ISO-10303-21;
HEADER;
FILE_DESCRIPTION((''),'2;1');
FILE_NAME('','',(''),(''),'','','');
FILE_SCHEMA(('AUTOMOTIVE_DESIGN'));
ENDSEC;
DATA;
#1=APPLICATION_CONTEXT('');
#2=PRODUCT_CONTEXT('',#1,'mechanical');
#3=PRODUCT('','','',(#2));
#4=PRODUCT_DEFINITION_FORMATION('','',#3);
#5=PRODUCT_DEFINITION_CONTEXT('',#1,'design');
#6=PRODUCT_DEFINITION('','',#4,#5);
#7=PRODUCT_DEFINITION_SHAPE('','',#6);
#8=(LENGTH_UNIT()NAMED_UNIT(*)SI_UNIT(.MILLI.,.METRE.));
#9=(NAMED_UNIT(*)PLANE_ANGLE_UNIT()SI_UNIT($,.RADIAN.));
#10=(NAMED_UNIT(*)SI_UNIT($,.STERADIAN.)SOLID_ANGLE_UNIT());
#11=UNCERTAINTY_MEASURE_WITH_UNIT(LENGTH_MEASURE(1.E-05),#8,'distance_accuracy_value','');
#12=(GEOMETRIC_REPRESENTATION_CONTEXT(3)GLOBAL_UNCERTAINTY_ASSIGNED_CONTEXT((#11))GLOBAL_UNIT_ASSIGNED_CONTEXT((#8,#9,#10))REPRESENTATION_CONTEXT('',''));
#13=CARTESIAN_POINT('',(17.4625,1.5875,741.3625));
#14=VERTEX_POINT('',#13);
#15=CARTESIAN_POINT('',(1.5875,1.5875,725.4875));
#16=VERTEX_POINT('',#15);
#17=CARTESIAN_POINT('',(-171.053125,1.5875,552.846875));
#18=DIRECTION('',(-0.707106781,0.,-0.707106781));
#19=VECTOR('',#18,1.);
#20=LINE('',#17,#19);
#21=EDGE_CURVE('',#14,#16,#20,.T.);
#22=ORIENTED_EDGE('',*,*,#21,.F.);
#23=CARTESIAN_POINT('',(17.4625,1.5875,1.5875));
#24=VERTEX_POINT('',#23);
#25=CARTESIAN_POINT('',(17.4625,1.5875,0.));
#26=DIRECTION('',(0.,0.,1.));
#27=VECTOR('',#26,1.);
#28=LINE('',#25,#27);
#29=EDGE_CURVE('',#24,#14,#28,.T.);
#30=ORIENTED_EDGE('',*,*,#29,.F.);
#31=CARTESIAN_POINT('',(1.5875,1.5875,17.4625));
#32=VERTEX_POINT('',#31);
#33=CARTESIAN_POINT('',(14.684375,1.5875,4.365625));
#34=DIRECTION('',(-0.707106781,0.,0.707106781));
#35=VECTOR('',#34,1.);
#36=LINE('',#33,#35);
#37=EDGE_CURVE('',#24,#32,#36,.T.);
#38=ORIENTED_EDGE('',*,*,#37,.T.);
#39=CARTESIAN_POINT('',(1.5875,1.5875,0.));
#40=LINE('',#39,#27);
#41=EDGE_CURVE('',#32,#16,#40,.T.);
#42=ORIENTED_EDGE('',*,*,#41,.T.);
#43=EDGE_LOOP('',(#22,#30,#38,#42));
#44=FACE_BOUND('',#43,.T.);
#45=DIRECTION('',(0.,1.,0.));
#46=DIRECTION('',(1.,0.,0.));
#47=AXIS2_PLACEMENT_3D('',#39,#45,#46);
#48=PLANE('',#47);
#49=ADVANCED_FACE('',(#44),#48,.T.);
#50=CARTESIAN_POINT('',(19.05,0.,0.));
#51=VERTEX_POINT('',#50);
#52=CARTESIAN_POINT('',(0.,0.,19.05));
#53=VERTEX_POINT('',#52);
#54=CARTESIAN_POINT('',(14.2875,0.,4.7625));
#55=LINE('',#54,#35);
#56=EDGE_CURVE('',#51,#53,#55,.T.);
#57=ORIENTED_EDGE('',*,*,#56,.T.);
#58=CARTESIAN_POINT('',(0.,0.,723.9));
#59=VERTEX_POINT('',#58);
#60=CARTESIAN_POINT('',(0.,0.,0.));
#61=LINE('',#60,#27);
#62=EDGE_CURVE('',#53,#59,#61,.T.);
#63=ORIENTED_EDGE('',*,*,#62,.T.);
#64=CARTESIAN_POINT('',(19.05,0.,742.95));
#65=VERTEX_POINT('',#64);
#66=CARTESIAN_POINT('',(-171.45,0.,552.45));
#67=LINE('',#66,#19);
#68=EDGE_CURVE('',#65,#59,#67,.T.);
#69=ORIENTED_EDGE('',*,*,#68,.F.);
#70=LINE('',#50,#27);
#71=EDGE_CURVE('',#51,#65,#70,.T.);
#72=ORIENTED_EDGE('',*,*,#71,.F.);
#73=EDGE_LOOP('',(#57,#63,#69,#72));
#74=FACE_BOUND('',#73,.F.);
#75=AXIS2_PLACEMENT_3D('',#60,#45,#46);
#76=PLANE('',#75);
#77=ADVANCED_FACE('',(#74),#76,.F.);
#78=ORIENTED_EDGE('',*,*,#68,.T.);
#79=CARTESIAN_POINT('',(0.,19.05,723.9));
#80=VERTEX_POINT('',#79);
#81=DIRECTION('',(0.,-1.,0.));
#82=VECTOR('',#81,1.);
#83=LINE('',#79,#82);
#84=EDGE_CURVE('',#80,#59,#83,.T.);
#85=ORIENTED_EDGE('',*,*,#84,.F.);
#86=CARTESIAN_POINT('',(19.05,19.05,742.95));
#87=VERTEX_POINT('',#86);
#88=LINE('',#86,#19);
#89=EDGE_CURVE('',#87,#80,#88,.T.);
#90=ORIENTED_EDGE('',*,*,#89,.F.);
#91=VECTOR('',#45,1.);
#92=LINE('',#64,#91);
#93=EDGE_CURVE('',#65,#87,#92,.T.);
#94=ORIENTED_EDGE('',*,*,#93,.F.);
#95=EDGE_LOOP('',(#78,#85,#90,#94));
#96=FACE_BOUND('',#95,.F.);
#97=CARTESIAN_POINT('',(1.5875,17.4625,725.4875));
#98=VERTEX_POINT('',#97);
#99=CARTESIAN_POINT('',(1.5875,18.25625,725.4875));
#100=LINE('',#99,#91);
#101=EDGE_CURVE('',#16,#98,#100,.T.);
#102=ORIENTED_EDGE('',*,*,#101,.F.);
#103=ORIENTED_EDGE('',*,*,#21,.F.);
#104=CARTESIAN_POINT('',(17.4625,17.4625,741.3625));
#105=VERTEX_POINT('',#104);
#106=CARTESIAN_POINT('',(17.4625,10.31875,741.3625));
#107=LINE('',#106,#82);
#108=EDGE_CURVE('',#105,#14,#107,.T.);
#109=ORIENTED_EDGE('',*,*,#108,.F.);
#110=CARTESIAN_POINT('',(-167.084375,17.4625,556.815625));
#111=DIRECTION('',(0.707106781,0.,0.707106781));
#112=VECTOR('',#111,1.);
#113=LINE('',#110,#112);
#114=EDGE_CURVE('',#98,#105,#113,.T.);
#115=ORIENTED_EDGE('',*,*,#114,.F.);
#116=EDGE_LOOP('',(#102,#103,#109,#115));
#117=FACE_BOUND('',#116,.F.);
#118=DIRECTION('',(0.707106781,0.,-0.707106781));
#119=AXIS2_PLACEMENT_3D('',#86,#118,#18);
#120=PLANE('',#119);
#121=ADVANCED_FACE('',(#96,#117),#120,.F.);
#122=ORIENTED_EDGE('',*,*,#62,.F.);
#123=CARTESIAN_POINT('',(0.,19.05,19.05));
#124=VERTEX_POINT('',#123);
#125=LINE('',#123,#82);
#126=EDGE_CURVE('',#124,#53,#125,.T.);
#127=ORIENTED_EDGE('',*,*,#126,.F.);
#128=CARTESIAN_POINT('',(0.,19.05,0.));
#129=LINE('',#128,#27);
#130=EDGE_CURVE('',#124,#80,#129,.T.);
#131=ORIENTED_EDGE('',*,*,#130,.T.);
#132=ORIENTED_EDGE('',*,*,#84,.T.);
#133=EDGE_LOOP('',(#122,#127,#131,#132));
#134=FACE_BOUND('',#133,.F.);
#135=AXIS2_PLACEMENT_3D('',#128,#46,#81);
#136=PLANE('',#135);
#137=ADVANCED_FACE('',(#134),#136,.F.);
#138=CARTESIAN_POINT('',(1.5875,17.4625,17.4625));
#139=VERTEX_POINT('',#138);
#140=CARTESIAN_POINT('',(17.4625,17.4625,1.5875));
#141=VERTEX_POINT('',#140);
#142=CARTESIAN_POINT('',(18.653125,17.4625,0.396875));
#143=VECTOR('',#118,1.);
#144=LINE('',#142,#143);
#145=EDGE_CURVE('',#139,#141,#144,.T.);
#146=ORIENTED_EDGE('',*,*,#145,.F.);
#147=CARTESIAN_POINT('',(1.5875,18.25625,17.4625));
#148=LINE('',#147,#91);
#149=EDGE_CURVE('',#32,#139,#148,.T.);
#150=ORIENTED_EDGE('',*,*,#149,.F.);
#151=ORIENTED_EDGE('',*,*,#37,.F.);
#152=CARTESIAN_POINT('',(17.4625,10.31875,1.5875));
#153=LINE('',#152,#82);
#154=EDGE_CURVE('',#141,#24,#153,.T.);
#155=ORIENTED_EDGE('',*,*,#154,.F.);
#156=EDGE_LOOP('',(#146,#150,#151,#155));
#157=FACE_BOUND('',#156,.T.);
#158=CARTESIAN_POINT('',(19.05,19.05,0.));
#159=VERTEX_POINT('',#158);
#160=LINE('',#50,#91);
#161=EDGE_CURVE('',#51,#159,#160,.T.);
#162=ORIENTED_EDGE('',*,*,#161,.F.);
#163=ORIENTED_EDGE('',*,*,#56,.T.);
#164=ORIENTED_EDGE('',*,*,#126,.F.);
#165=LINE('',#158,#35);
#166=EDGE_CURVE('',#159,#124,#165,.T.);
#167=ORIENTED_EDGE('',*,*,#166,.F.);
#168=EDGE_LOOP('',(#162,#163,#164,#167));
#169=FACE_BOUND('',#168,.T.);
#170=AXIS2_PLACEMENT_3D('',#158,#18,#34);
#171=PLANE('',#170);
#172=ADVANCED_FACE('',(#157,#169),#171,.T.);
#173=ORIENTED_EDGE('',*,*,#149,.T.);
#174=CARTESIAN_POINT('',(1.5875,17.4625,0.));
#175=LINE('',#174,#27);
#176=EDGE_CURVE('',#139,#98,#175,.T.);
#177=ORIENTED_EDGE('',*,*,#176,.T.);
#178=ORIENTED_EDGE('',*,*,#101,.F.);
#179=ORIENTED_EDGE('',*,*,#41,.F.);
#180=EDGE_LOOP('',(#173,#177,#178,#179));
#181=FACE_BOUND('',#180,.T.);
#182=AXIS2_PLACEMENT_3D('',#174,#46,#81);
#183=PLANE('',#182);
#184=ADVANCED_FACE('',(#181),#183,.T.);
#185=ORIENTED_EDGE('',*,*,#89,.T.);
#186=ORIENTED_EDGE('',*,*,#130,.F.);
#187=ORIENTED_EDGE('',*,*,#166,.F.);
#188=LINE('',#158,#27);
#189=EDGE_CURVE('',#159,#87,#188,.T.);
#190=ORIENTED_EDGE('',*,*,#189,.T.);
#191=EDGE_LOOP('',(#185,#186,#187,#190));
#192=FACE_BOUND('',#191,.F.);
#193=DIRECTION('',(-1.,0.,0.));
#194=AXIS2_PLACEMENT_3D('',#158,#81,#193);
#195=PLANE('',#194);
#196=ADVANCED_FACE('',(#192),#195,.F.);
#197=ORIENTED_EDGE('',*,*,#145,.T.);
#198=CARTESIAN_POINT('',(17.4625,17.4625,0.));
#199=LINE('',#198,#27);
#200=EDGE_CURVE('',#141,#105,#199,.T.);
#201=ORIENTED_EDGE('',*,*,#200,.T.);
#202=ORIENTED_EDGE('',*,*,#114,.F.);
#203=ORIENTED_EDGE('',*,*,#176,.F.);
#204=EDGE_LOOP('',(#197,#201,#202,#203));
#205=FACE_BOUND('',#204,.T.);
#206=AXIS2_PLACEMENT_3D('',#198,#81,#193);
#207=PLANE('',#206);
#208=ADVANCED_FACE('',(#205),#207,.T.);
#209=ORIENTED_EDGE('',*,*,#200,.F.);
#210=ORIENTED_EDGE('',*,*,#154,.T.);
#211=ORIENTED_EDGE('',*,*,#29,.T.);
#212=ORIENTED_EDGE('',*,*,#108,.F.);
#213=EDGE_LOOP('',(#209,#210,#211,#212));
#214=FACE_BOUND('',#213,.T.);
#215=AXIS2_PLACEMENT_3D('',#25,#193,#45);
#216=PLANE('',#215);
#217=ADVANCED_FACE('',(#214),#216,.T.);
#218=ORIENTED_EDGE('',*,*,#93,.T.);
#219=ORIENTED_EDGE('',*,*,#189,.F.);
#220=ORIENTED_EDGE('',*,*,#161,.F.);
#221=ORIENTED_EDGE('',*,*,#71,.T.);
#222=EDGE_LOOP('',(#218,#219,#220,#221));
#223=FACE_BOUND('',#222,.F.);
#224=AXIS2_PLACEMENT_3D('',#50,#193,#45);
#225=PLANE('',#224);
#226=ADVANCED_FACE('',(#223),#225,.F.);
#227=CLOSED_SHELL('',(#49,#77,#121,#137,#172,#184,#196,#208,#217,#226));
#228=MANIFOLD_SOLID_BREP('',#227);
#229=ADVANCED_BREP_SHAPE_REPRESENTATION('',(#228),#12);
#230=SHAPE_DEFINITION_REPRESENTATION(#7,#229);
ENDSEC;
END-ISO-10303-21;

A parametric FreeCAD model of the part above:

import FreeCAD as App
import Part
import Sketcher
Q = App.Units.Quantity


def add_polygon(sketch, points):
    """Adds a closed chain of lines whose ends are joined by coincident constraints."""
    first, n = sketch.GeometryCount, len(points)
    for a, b in zip(points, points[1:] + points[:1]):
        sketch.addGeometry(Part.LineSegment(App.Vector(*a, 0), App.Vector(*b, 0)), False)
    for i in range(n):
        sketch.addConstraint(Sketcher.Constraint("Coincident", first + i, 2, first + (i + 1) % n, 1))

doc = App.newDocument("Part")
body = doc.addObject("PartDesign::Body", "Body")

sketch1 = doc.addObject("Sketcher::SketchObject", "Sketch")
body.addObject(sketch1)
sketch1.AttachmentSupport = (doc.XY_Plane, [""])
sketch1.MapMode = "FlatFace"
add_polygon(sketch1, [(0, 19.05), (0, 0), (19.05, 0), (19.05, 19.05)])
add_polygon(sketch1, [(1.5875, 17.4625), (17.4625, 17.4625), (17.4625, 1.5875), (1.5875, 1.5875)])
sketch1.addConstraint([
    Sketcher.Constraint("Vertical", 0),
    Sketcher.Constraint("Horizontal", 1),
    Sketcher.Constraint("Vertical", 2),
    Sketcher.Constraint("Horizontal", 3),
    Sketcher.Constraint("Horizontal", 4),
    Sketcher.Constraint("Vertical", 5),
    Sketcher.Constraint("Horizontal", 6),
    Sketcher.Constraint("Vertical", 7),
    Sketcher.Constraint("Coincident", 0, 2, -1, 1),
    Sketcher.Constraint("Equal", 3, 0),
    Sketcher.Constraint("Equal", 6, 5),
    Sketcher.Constraint("DistanceX", 1, 1, 1, 2, Q("0.75 in")),
    Sketcher.Constraint("DistanceY", -1, 1, 5, 2, Q("0.0625 in")),
    Sketcher.Constraint("DistanceX", -1, 1, 6, 2, Q("0.0625 in")),
    Sketcher.Constraint("DistanceX", 4, 2, 2, 2, Q("0.0625 in")),
])
pad1 = doc.addObject("PartDesign::Pad", "Pad")
body.addObject(pad1)
pad1.Profile = sketch1
pad1.Length = Q("29.25 in")

sketch2 = doc.addObject("Sketcher::SketchObject", "Sketch001")
body.addObject(sketch2)
sketch2.AttachmentSupport = (doc.XZ_Plane, [""])
sketch2.MapMode = "FlatFace"
sketch2.AttachmentOffset = App.Placement(App.Vector(0, 0, -0.75 * 25.4), App.Rotation())
add_polygon(sketch2, [(0, 19.05), (19.05, 0), (0, 0)])
add_polygon(sketch2, [(19.05, 742.95), (0, 723.9), (0, 742.95)])
sketch2.addConstraint([
    Sketcher.Constraint("Horizontal", 1),
    Sketcher.Constraint("Vertical", 2),
    Sketcher.Constraint("Vertical", 4),
    Sketcher.Constraint("Horizontal", 5),
    Sketcher.Constraint("Coincident", 1, 2, -1, 1),
    Sketcher.Constraint("PointOnObject", 3, 2, -2),
    Sketcher.Constraint("Perpendicular", 0, 3),
    Sketcher.Constraint("Vertical", 0, 2, 5, 2),
    Sketcher.Constraint("Equal", 5, 2),
    Sketcher.Constraint("DistanceX", 1, 2, 1, 1, Q("0.75 in")),
    Sketcher.Constraint("DistanceY", -1, 1, 3, 2, Q("28.5 in")),
])
pocket1 = doc.addObject("PartDesign::Pocket", "Pocket")
body.addObject(pocket1)
pocket1.Profile = sketch2
pocket1.Type = "ThroughAll"
pocket1.Reversed = True

doc.recompute()
